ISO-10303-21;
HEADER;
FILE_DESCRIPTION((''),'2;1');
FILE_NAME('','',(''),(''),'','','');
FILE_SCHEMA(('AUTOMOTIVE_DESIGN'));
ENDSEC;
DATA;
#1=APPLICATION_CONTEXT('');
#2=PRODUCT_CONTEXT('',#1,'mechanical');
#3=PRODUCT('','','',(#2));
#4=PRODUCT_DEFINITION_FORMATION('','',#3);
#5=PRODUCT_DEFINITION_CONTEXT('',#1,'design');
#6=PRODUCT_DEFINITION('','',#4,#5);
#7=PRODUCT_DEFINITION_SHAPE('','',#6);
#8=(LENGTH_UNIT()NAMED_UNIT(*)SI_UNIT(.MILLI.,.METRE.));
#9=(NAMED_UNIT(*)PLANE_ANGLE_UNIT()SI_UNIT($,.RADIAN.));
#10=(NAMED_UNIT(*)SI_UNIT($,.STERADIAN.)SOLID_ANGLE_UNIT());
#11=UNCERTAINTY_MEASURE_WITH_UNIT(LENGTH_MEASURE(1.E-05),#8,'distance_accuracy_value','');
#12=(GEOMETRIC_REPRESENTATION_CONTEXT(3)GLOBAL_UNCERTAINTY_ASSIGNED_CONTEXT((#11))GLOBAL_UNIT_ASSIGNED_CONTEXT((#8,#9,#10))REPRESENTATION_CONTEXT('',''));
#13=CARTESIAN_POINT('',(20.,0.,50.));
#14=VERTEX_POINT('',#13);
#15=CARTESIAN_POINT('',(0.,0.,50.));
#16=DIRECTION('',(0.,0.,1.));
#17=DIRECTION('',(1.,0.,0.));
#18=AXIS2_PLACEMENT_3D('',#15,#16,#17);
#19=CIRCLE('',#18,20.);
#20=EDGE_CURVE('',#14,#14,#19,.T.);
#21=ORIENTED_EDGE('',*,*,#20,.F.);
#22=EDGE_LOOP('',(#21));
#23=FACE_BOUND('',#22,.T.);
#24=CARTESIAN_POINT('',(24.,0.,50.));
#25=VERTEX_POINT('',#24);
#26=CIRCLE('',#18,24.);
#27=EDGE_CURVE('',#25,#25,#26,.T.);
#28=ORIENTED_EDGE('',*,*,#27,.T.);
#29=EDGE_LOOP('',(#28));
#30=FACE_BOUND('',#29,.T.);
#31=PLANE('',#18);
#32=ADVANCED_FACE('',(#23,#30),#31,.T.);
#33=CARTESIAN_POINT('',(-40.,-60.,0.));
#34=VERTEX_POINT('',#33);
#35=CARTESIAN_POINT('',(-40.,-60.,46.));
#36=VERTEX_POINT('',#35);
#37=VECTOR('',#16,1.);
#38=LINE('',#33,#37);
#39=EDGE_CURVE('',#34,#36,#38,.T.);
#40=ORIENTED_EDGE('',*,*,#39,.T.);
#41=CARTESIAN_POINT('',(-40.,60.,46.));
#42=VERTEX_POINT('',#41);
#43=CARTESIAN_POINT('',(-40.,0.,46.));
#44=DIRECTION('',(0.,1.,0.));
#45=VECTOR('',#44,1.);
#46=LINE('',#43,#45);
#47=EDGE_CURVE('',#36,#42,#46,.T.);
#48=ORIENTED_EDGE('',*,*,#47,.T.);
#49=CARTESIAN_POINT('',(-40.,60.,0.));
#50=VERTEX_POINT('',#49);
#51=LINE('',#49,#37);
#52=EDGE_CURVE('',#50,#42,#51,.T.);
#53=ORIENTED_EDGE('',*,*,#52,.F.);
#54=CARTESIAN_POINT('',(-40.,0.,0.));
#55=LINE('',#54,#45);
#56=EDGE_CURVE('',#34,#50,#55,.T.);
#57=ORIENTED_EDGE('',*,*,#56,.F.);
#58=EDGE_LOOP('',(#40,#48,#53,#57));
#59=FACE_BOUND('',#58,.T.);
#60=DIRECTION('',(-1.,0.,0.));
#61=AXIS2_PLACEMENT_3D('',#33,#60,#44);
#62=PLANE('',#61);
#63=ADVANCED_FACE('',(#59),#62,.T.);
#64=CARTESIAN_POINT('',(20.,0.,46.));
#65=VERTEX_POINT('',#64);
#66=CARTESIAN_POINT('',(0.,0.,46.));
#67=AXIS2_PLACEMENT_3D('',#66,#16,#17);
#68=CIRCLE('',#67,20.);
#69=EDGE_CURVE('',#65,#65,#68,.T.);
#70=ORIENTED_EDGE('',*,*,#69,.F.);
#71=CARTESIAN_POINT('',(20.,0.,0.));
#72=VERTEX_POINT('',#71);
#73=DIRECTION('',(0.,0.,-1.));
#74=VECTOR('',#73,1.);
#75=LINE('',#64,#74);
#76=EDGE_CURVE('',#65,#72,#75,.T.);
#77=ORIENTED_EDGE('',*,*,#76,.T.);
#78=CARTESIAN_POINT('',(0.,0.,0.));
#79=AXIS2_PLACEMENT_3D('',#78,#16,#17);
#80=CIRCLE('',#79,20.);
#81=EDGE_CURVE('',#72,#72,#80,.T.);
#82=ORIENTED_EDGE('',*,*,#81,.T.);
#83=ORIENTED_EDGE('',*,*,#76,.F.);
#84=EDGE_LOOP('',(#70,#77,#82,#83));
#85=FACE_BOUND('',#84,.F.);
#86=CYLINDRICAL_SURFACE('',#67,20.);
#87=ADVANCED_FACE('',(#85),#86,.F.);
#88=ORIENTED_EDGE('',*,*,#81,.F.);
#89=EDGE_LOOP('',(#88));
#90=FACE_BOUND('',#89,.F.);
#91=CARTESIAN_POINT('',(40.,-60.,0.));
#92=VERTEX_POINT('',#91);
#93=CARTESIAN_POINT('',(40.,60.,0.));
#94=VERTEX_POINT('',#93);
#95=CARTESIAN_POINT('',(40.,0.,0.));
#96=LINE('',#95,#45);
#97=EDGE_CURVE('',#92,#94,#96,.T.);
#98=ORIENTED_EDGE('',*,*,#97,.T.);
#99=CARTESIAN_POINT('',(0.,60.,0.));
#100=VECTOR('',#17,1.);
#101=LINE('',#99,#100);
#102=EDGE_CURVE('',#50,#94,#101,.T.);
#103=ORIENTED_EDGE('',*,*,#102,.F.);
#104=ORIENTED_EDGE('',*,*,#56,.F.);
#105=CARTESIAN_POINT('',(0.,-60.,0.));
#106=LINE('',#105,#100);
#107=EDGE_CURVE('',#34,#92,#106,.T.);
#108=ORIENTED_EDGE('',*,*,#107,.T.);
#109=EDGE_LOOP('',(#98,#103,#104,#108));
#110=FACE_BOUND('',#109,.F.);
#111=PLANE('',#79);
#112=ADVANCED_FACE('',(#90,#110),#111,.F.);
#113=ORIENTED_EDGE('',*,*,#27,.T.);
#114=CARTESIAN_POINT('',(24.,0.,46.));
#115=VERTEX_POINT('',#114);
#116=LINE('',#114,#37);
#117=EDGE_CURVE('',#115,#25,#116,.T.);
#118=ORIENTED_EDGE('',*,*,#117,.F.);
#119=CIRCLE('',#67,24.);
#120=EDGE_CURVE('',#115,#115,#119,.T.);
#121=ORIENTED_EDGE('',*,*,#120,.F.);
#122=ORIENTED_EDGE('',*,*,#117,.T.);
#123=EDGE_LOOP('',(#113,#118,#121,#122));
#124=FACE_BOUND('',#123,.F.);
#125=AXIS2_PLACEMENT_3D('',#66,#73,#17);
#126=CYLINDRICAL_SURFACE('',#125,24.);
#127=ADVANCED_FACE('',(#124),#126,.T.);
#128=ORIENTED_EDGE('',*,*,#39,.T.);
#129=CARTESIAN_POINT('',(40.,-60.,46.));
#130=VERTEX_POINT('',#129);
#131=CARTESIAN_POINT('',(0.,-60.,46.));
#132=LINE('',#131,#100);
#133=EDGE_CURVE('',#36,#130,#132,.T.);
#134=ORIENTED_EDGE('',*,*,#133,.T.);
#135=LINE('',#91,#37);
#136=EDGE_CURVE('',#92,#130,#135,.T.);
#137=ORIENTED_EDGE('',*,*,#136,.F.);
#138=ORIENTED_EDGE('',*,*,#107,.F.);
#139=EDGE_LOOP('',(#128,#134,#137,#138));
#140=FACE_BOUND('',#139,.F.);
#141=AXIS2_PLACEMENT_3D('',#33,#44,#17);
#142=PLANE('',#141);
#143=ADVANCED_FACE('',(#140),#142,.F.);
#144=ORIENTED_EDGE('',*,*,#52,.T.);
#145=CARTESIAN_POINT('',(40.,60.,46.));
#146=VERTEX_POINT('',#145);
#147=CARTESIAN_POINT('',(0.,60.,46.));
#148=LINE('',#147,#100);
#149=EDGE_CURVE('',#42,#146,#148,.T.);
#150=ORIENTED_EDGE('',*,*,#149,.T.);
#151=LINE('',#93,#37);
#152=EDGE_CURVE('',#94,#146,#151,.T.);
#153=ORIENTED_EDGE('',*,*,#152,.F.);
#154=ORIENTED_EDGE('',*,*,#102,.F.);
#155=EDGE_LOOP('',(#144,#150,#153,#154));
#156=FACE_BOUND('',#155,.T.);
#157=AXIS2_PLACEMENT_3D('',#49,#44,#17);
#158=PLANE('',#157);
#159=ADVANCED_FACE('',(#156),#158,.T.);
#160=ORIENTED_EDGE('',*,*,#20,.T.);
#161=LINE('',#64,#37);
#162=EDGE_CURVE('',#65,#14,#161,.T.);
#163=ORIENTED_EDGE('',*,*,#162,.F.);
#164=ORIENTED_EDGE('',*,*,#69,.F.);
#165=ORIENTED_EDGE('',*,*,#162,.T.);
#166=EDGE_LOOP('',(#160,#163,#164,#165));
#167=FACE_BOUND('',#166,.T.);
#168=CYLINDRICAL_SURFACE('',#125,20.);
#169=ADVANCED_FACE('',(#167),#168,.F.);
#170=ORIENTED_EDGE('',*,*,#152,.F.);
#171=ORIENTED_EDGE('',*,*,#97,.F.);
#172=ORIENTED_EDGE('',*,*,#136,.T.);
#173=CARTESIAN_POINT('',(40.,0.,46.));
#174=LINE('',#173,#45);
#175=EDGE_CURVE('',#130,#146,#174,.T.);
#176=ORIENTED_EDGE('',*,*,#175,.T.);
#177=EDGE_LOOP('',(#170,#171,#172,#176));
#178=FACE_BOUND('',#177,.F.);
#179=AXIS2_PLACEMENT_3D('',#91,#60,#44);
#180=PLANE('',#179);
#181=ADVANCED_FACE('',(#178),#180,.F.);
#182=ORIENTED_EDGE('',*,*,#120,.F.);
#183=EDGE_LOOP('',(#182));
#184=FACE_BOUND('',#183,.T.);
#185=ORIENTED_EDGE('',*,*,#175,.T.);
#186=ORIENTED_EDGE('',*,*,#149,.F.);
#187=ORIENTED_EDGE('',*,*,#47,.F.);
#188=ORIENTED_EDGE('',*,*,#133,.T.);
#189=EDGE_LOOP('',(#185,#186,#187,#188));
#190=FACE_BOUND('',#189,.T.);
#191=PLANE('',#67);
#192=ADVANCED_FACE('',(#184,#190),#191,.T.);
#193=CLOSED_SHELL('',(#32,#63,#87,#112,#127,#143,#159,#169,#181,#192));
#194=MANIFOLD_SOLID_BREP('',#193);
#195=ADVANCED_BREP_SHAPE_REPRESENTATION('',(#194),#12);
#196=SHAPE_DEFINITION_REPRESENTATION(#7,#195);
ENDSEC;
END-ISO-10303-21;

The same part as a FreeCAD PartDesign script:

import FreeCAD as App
import Part
import Sketcher
from FreeCAD import Vector
Q = App.Units.Quantity


def add_polygon(sketch, points):
    """Adds a closed chain of lines whose ends are joined by coincident constraints."""
    first, n = sketch.GeometryCount, len(points)
    for a, b in zip(points, points[1:] + points[:1]):
        sketch.addGeometry(Part.LineSegment(App.Vector(*a, 0), App.Vector(*b, 0)), False)
    for i in range(n):
        sketch.addConstraint(Sketcher.Constraint("Coincident", first + i, 2, first + (i + 1) % n, 1))

doc = App.newDocument("Part")
body = doc.addObject("PartDesign::Body", "Body")

# Sketch on XY plane
sketch1 = doc.addObject("Sketcher::SketchObject", "Sketch")
body.addObject(sketch1)
sketch1.AttachmentSupport = (doc.XY_Plane, [""])
sketch1.MapMode = "FlatFace"
add_polygon(sketch1, [(-40, 60), (-40, -60), (40, -60), (40, 60)])  # lines 0-3
sketch1.addConstraint([
    Sketcher.Constraint("Vertical", 0),
    Sketcher.Constraint("Horizontal", 1),
    Sketcher.Constraint("Vertical", 2),
    Sketcher.Constraint("Horizontal", 3),
    Sketcher.Constraint("Symmetric", 0, 2, 2, 2, -1, 1),
    Sketcher.Constraint("DistanceX", 1, 1, 1, 2, Q("80 mm")),
    Sketcher.Constraint("DistanceY", 0, 2, 0, 1, Q("120 mm")),
])
pad1 = doc.addObject("PartDesign::Pad", "Pad")
body.addObject(pad1)
pad1.Profile = sketch1
pad1.Length = 46

# Sketch on XY plane
sketch2 = doc.addObject("Sketcher::SketchObject", "Sketch001")
body.addObject(sketch2)
sketch2.AttachmentSupport = (doc.XY_Plane, [""])
sketch2.MapMode = "FlatFace"
sketch2.AttachmentOffset = App.Placement(Vector(0, 0, 46), App.Rotation())
sketch2.addGeometry(Part.Circle(Vector(0, 0, 0), Vector(0, 0, 1), 20), False)
sketch2.addConstraint([
    Sketcher.Constraint("Coincident", 0, 3, -1, 1),
    Sketcher.Constraint("Diameter", 0, Q("40 mm")),
])
pocket1 = doc.addObject("PartDesign::Pocket", "Pocket")
body.addObject(pocket1)
pocket1.Profile = sketch2
pocket1.Length = 65

# Sketch on XY plane
sketch3 = doc.addObject("Sketcher::SketchObject", "Sketch002")
body.addObject(sketch3)
sketch3.AttachmentSupport = (doc.XY_Plane, [""])
sketch3.MapMode = "FlatFace"
sketch3.AttachmentOffset = App.Placement(Vector(0, 0, 46), App.Rotation())
sketch3.addGeometry([
    Part.Circle(Vector(0, 0, 0), Vector(0, 0, 1), 24),
    Part.Circle(Vector(0, 0, 0), Vector(0, 0, 1), 20),
], False)
sketch3.addConstraint([
    Sketcher.Constraint("Coincident", 0, 3, -1, 1),
    Sketcher.Constraint("Coincident", 1, 3, -1, 1),
    Sketcher.Constraint("Diameter", 0, Q("48 mm")),
    Sketcher.Constraint("Diameter", 1, Q("40 mm")),
])
pad2 = doc.addObject("PartDesign::Pad", "Pad001")
body.addObject(pad2)
pad2.Profile = sketch3
pad2.Length = 4

doc.recompute()
